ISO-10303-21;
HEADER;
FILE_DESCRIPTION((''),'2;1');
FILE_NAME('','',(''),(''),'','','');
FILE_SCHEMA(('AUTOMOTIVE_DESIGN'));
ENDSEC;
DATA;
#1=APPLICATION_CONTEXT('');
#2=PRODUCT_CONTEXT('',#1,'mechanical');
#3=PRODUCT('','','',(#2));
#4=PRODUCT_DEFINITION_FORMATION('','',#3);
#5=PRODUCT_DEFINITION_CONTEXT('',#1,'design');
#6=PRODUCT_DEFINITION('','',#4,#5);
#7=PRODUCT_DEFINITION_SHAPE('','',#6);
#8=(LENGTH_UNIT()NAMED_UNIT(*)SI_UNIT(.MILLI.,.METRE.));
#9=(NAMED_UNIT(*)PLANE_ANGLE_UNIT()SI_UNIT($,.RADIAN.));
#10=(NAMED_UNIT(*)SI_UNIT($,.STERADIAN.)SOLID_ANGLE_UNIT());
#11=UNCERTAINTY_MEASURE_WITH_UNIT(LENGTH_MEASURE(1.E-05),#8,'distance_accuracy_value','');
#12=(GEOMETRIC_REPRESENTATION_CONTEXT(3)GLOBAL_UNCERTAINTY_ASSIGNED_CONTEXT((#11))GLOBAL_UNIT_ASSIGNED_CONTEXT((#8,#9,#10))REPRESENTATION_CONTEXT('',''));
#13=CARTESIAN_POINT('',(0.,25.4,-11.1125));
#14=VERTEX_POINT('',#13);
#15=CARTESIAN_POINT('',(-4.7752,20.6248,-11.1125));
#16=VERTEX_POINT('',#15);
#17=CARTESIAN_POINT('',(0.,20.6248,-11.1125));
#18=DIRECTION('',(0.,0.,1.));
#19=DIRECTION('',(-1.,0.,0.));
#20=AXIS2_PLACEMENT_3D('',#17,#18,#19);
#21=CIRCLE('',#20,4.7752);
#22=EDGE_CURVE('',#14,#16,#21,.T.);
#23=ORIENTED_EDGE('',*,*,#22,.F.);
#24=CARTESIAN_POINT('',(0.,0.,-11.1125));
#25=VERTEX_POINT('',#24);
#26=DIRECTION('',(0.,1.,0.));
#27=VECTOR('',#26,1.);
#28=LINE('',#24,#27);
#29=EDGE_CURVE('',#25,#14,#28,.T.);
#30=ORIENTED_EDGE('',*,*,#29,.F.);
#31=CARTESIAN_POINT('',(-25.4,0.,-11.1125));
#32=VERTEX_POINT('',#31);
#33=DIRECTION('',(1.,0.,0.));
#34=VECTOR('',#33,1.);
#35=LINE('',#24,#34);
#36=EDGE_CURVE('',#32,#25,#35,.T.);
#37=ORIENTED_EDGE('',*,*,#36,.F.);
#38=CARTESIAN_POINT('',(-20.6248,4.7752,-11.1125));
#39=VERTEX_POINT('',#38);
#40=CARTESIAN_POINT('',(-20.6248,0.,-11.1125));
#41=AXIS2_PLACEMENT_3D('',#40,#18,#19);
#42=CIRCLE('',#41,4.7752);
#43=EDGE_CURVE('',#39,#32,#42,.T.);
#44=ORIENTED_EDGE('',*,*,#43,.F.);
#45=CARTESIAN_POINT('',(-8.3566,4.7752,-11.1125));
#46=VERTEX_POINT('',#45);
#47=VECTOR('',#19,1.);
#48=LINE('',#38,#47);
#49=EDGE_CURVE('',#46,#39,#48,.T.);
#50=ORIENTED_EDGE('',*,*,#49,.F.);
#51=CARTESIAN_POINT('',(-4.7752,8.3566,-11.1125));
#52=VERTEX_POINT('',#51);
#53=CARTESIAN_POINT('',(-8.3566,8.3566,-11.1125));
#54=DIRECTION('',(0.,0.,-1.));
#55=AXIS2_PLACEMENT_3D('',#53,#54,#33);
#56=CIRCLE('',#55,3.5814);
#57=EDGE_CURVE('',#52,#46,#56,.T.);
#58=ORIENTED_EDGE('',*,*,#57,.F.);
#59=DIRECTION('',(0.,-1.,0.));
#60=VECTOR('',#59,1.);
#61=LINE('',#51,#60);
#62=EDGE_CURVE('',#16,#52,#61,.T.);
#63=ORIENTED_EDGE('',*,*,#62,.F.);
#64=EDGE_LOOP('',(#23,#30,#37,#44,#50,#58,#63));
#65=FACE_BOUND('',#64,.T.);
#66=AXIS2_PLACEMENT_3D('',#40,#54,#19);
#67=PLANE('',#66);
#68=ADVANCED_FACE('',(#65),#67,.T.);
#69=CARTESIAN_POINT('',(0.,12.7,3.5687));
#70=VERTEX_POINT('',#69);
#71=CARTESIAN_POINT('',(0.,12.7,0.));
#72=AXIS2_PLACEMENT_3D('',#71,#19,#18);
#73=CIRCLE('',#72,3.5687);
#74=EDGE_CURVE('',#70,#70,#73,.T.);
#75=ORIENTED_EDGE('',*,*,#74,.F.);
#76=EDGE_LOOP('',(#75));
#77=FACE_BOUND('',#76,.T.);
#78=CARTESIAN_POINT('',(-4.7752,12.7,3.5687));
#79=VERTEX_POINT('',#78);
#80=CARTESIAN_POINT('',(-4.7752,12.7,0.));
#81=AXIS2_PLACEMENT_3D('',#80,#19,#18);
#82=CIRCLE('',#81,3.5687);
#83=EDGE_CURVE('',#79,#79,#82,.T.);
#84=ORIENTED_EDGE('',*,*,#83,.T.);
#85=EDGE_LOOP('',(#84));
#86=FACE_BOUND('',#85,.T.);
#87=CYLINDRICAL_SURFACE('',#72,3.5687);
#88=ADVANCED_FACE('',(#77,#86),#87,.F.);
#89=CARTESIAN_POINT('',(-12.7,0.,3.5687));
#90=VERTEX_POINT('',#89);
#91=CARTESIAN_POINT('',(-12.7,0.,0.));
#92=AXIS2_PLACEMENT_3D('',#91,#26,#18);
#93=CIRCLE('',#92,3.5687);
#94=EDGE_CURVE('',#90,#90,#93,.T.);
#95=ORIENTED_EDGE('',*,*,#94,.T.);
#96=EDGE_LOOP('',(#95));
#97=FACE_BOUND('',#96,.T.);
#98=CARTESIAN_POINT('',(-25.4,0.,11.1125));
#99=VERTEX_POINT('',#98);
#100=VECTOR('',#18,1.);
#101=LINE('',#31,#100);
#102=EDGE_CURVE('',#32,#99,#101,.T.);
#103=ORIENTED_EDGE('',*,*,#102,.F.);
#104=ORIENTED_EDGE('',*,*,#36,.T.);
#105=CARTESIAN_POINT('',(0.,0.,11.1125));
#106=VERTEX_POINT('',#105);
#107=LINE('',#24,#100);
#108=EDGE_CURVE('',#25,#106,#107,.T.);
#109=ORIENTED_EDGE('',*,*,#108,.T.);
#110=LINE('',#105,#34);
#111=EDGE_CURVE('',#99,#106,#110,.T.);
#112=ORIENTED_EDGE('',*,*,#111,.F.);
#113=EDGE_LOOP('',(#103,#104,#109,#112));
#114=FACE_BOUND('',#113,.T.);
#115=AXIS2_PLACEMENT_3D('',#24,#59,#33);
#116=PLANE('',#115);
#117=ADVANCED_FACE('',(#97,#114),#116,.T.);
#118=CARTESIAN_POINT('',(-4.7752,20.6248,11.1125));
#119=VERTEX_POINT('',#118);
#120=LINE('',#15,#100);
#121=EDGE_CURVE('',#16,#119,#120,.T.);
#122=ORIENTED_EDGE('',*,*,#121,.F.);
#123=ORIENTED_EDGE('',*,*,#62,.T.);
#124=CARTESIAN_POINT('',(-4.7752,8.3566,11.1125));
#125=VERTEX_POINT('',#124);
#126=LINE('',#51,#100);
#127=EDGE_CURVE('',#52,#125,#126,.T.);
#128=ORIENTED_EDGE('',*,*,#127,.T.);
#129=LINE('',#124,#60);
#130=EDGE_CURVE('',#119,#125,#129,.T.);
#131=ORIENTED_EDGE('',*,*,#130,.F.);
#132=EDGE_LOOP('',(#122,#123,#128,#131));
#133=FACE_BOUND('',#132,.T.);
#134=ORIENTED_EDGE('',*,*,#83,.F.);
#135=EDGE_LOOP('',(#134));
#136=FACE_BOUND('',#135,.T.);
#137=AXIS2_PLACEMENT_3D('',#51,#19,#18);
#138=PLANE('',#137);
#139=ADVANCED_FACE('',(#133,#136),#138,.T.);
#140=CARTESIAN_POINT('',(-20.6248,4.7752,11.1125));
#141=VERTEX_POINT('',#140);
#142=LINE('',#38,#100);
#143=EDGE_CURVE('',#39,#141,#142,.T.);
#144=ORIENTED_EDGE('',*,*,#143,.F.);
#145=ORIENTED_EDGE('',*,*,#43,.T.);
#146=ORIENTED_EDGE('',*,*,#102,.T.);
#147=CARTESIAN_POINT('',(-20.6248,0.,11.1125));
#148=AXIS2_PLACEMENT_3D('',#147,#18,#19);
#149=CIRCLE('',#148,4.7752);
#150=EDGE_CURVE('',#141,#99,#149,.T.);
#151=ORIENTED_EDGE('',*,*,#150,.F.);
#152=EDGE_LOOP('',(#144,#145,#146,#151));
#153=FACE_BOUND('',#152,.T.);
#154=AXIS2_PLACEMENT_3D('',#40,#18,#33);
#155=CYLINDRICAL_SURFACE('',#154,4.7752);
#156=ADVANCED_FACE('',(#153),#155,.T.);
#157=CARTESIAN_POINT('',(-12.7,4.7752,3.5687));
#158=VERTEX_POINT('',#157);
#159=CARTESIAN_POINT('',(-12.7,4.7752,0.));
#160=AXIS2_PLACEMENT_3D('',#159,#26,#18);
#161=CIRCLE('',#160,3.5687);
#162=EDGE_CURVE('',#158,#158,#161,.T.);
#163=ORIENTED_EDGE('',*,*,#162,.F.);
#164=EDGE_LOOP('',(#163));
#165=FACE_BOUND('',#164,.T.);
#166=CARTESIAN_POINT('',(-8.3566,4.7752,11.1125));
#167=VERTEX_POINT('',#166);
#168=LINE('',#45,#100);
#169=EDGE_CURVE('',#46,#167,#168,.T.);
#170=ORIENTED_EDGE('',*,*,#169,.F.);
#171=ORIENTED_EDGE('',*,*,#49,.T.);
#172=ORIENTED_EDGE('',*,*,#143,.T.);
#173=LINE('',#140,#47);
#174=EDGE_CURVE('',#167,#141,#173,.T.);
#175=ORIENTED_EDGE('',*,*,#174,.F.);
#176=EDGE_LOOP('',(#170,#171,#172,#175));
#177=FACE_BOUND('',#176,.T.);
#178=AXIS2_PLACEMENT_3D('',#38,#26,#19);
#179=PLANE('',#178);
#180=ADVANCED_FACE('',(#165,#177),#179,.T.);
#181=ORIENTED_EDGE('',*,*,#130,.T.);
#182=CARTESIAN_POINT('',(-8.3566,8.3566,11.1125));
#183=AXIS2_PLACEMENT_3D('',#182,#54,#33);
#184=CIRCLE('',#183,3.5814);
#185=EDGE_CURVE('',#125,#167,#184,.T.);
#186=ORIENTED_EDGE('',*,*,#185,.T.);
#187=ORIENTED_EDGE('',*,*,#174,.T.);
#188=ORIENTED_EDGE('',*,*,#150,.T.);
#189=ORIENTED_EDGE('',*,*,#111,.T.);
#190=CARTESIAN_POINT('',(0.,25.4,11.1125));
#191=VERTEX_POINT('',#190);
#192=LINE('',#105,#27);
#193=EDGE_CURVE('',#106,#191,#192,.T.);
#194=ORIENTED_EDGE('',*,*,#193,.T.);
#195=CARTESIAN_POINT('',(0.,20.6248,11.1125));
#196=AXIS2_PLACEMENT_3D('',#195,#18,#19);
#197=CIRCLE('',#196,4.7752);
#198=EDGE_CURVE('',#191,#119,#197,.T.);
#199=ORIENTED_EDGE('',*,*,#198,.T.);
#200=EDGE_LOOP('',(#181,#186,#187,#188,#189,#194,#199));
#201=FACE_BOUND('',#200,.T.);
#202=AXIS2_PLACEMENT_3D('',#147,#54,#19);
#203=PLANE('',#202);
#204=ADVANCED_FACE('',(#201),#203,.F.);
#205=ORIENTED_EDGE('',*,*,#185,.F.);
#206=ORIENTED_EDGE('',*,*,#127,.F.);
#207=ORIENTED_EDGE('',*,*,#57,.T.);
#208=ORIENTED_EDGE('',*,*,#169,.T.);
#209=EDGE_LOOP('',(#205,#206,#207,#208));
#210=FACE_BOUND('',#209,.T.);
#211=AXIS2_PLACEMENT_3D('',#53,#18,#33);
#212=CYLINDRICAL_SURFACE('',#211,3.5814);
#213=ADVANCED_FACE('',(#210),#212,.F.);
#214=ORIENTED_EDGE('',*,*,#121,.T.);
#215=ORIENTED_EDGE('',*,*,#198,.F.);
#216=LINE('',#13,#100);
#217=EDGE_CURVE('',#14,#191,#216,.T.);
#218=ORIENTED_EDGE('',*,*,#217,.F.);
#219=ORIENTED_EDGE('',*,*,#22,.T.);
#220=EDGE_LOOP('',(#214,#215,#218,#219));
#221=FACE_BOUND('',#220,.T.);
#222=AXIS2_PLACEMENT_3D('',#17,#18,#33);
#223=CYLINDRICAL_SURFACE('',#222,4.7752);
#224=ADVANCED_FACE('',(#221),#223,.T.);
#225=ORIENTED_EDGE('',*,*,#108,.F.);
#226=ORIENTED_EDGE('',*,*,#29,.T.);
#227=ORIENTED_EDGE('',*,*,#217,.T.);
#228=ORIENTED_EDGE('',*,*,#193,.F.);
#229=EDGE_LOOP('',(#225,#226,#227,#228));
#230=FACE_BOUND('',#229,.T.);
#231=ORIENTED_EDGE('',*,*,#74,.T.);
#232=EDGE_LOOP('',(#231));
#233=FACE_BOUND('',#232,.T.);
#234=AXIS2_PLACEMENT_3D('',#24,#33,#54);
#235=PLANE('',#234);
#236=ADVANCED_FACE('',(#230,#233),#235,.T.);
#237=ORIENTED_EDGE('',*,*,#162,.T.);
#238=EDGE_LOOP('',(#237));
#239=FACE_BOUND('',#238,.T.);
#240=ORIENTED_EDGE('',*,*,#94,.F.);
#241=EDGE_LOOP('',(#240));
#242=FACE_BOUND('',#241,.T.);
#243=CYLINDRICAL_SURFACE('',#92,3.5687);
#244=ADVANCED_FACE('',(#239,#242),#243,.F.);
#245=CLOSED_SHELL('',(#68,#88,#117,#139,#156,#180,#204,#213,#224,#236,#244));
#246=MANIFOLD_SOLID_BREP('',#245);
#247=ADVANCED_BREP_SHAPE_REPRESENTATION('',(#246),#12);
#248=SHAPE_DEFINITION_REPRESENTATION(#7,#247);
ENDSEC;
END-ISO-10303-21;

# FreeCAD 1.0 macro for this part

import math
import FreeCAD as App
import Part
import Sketcher
Q = App.Units.Quantity

doc = App.newDocument("Part")
params = doc.addObject("Spreadsheet::Sheet", "Params")
for row, (alias, value) in enumerate([
    ("sketch1_width", "1 in"),
    ("sketch1_radius", "0.188 in"),
    ("sketch1_radius2", "0.141 in"),
    ("pad1_length", "0.875 in"),
    ("sketch2_diameter", "0.281 in"),
    ("sketch3_diameter", "0.281 in"),
], start=1):
    params.set(f"A{row}", alias)
    params.set(f"B{row}", "=" + value)
    params.setAlias(f"B{row}", alias)

body = doc.addObject("PartDesign::Body", "Body")

sketch1 = body.newObject("Sketcher::SketchObject", "Sketch")
sketch1.AttachmentSupport = (doc.getObject("XY_Plane"), [""])
sketch1.MapMode = "FlatFace"
sketch1.addGeometry([
    Part.LineSegment(App.Vector(0, 0, 0), App.Vector(0, 25.4, 0)),
    Part.ArcOfCircle(Part.Circle(App.Vector(0, 20.6, 0), App.Vector(0, 0, 1), 4.8), math.radians(90), math.radians(180)),
    Part.LineSegment(App.Vector(-4.8, 20.6, 0), App.Vector(-4.8, 8.4, 0)),
    Part.ArcOfCircle(Part.Circle(App.Vector(-8.4, 8.4, 0), App.Vector(0, 0, 1), 3.6), math.radians(-90), math.radians(0)),
    Part.LineSegment(App.Vector(-8.4, 4.8, 0), App.Vector(-20.6, 4.8, 0)),
    Part.ArcOfCircle(Part.Circle(App.Vector(-20.6, 0, 0), App.Vector(0, 0, 1), 4.8), math.radians(90), math.radians(180)),
    Part.LineSegment(App.Vector(-25.4, 0, 0), App.Vector(0, 0, 0)),
], False)
sketch1.addConstraint([
    Sketcher.Constraint("Coincident", 0, 2, 1, 1),
    Sketcher.Constraint("Tangent", 1, 2, 2, 1),
    Sketcher.Constraint("Tangent", 2, 2, 3, 2),
    Sketcher.Constraint("Tangent", 3, 1, 4, 1),
    Sketcher.Constraint("Tangent", 4, 2, 5, 1),
    Sketcher.Constraint("Coincident", 5, 2, 6, 1),
    Sketcher.Constraint("Coincident", 6, 2, 0, 1),
    Sketcher.Constraint("Vertical", 0),
    Sketcher.Constraint("Vertical", 2),
    Sketcher.Constraint("Horizontal", 4),
    Sketcher.Constraint("Horizontal", 6),
    Sketcher.Constraint("Coincident", 6, 2, -1, 1),
    Sketcher.Constraint("Equal", 1, 5),
    Sketcher.Constraint("PointOnObject", 1, 3, -2),
    Sketcher.Constraint("PointOnObject", 5, 3, -1),
    Sketcher.Constraint("Equal", 6, 0),
    Sketcher.Constraint("DistanceX", 6, 1, 6, 2, Q("1 in")),
    Sketcher.Constraint("Radius", 1, Q("0.188 in")),
    Sketcher.Constraint("Radius", 3, Q("0.141 in")),
])
sketch1.setExpression("Constraints[16]", "Params.sketch1_width")
sketch1.setExpression("Constraints[17]", "Params.sketch1_radius")
sketch1.setExpression("Constraints[18]", "Params.sketch1_radius2")
pad1 = body.newObject("PartDesign::Pad", "Pad")
pad1.Profile = sketch1
pad1.setExpression("Length", "Params.pad1_length")
pad1.Midplane = True

sketch2 = body.newObject("Sketcher::SketchObject", "Sketch001")
sketch2.AttachmentSupport = (doc.getObject("XZ_Plane"), [""])
sketch2.MapMode = "FlatFace"
sketch2.AttachmentOffset = App.Placement(App.Vector(0, 0, -0.188 * 25.4), App.Rotation())
sketch2.addGeometry(Part.Circle(App.Vector(-12.7, 0, 0), App.Vector(0, 0, 1), 3.6), False)
sketch2.addConstraint([
    Sketcher.Constraint("PointOnObject", 0, 3, -1),
    Sketcher.Constraint("Diameter", 0, Q("0.281 in")),
    Sketcher.Constraint("DistanceX", 0, 3, -1, 1, Q("0.5 in")),
])
sketch2.setExpression("Constraints[1]", "Params.sketch2_diameter")
pocket1 = body.newObject("PartDesign::Pocket", "Pocket")
pocket1.Profile = sketch2
pocket1.Type = "ThroughAll"
pocket1.Reversed = True

sketch3 = body.newObject("Sketcher::SketchObject", "Sketch002")
sketch3.AttachmentSupport = (doc.getObject("YZ_Plane"), [""])
sketch3.MapMode = "FlatFace"
sketch3.AttachmentOffset = App.Placement(App.Vector(0, 0, -0.188 * 25.4), App.Rotation())
sketch3.addGeometry(Part.Circle(App.Vector(12.7, 0, 0), App.Vector(0, 0, 1), 3.6), False)
sketch3.addConstraint([
    Sketcher.Constraint("PointOnObject", 0, 3, -1),
    Sketcher.Constraint("Diameter", 0, Q("0.281 in")),
    Sketcher.Constraint("DistanceX", -1, 1, 0, 3, Q("0.5 in")),
])
sketch3.setExpression("Constraints[1]", "Params.sketch3_diameter")
pocket2 = body.newObject("PartDesign::Pocket", "Pocket001")
pocket2.Profile = sketch3
pocket2.Type = "ThroughAll"
pocket2.Reversed = True

doc.recompute()
